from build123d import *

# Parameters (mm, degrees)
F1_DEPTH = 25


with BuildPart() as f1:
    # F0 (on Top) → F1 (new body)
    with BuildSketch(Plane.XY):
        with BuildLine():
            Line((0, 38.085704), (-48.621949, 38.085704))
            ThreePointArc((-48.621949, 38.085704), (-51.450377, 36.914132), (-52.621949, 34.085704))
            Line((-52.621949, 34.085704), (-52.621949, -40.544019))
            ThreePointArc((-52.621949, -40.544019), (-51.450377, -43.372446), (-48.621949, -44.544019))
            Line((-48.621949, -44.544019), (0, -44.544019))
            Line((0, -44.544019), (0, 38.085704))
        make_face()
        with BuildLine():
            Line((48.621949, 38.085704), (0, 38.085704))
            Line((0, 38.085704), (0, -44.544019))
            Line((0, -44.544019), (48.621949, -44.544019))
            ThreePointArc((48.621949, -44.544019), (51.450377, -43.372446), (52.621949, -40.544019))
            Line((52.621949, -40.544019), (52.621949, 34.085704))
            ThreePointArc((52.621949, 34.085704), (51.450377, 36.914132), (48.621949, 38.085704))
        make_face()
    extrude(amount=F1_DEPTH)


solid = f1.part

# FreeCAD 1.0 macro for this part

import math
import FreeCAD as App
import Part
import Sketcher

V = App.Vector
Q = App.Units.Quantity

doc = App.newDocument("Part")
body = doc.addObject("PartDesign::Body", "Body")

sketch1 = body.newObject("Sketcher::SketchObject", "Sketch")
sketch1.AttachmentSupport = (doc.getObject("XY_Plane"), [""])
sketch1.MapMode = "FlatFace"
sketch1.addGeometry([
    Part.ArcOfCircle(Part.Circle(V(-48.6, 34.1, 0), V(0, 0, 1), 4), math.radians(90), math.radians(180)),
    Part.LineSegment(V(-52.6, 34.1, 0), V(-52.6, -40.5, 0)),
    Part.ArcOfCircle(Part.Circle(V(-48.6, -40.5, 0), V(0, 0, 1), 4), math.radians(180), math.radians(270)),
    Part.LineSegment(V(-48.6, -44.5, 0), V(48.6, -44.5, 0)),
    Part.ArcOfCircle(Part.Circle(V(48.6, -40.5, 0), V(0, 0, 1), 4), math.radians(-90), math.radians(0)),
    Part.LineSegment(V(52.6, -40.5, 0), V(52.6, 34.1, 0)),
    Part.ArcOfCircle(Part.Circle(V(48.6, 34.1, 0), V(0, 0, 1), 4), math.radians(0), math.radians(90)),
    Part.LineSegment(V(48.6, 38.1, 0), V(-48.6, 38.1, 0)),
], False)
sketch1.addConstraint([
    Sketcher.Constraint("Tangent", 0, 2, 1, 1),
    Sketcher.Constraint("Tangent", 1, 2, 2, 1),
    Sketcher.Constraint("Tangent", 2, 2, 3, 1),
    Sketcher.Constraint("Tangent", 3, 2, 4, 1),
    Sketcher.Constraint("Tangent", 4, 2, 5, 1),
    Sketcher.Constraint("Tangent", 5, 2, 6, 1),
    Sketcher.Constraint("Tangent", 6, 2, 7, 1),
    Sketcher.Constraint("Tangent", 7, 2, 0, 1),
    Sketcher.Constraint("Vertical", 1),
    Sketcher.Constraint("Horizontal", 3),
    Sketcher.Constraint("Vertical", 5),
    Sketcher.Constraint("Horizontal", 7),
    Sketcher.Constraint("Equal", 0, 2),
    Sketcher.Constraint("Equal", 2, 4),
    Sketcher.Constraint("Equal", 4, 6),
    Sketcher.Constraint("Radius", 2, Q("3.999999 mm")),
    Sketcher.Constraint("DistanceX", 3, 1, 3, 2, Q("97.243898 mm")),
    Sketcher.Constraint("DistanceY", 1, 2, 1, 1, Q("74.629723 mm")),
    Sketcher.Constraint("DistanceX", 0, 3, -1, 1, Q("48.621952 mm")),
    Sketcher.Constraint("DistanceY", 2, 3, -1, 1, Q("40.54402 mm")),
])
pad1 = body.newObject("PartDesign::Pad", "Pad")
pad1.Profile = sketch1
pad1.Length = 25

doc.recompute()
